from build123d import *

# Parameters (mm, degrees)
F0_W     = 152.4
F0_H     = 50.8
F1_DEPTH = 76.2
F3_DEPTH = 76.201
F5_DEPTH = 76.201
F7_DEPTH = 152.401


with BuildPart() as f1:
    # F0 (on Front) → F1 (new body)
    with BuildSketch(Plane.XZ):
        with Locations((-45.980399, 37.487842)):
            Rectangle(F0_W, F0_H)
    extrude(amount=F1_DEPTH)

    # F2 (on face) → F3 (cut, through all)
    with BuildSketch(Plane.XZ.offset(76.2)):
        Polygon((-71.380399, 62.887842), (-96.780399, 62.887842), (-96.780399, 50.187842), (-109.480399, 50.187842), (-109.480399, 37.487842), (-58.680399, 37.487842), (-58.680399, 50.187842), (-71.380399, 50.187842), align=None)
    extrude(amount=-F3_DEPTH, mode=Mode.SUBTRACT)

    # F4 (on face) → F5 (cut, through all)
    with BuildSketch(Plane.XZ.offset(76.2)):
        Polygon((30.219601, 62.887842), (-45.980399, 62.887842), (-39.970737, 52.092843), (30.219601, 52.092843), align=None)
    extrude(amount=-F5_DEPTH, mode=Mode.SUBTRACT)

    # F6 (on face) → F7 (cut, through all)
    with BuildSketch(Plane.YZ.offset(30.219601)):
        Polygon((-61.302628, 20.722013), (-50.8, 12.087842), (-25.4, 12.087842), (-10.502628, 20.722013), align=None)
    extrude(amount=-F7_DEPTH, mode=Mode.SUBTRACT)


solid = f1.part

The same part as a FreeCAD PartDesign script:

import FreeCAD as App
import Part
import Sketcher
from FreeCAD import Vector
Q = App.Units.Quantity


def add_polygon(sketch, points):
    """Adds a closed chain of lines whose ends are joined by coincident constraints."""
    first, n = sketch.GeometryCount, len(points)
    for a, b in zip(points, points[1:] + points[:1]):
        sketch.addGeometry(Part.LineSegment(App.Vector(*a, 0), App.Vector(*b, 0)), False)
    for i in range(n):
        sketch.addConstraint(Sketcher.Constraint("Coincident", first + i, 2, first + (i + 1) % n, 1))

doc = App.newDocument("Part")
body = doc.addObject("PartDesign::Body", "Body")

sketch1 = body.newObject("Sketcher::SketchObject", "Sketch")
sketch1.AttachmentSupport = (doc.getObject("XZ_Plane"), [""])
sketch1.MapMode = "FlatFace"
add_polygon(sketch1, [(-122, 63), (-122, 12), (30, 12), (30, 63)])
sketch1.addConstraint([
    Sketcher.Constraint("Vertical", 0),
    Sketcher.Constraint("Horizontal", 1),
    Sketcher.Constraint("Vertical", 2),
    Sketcher.Constraint("Horizontal", 3),
    Sketcher.Constraint("DistanceX", 1, 1, 1, 2, Q("6 in")),
    Sketcher.Constraint("DistanceY", 0, 2, 0, 1, Q("2 in")),
    Sketcher.Constraint("DistanceX", 0, 2, -1, 1, Q("122.180399 mm")),
    Sketcher.Constraint("DistanceY", -1, 1, 0, 2, Q("12.087842 mm")),
])
pad1 = body.newObject("PartDesign::Pad", "Pad")
pad1.Profile = sketch1
pad1.Length = Q("3 in")

sketch2 = body.newObject("Sketcher::SketchObject", "Sketch001")
sketch2.AttachmentSupport = (doc.getObject("XZ_Plane"), [""])
sketch2.MapMode = "FlatFace"
sketch2.AttachmentOffset = App.Placement(Vector(0, 0, 3 * 25.4), App.Rotation())
add_polygon(sketch2, [(-71, 63), (-97, 63), (-97, 50), (-109, 50), (-109, 37), (-59, 37), (-59, 50), (-71, 50)])
sketch2.addConstraint([
    Sketcher.Constraint("Horizontal", 0),
    Sketcher.Constraint("Vertical", 1),
    Sketcher.Constraint("Horizontal", 2),
    Sketcher.Constraint("Vertical", 3),
    Sketcher.Constraint("Horizontal", 4),
    Sketcher.Constraint("Vertical", 5),
    Sketcher.Constraint("Horizontal", 6),
    Sketcher.Constraint("Vertical", 7),
    Sketcher.Constraint("Horizontal", 2, 2, 5, 2),
    Sketcher.Constraint("Equal", 2, 6),
    Sketcher.Constraint("Equal", 6, 1),
    Sketcher.Constraint("Equal", 1, 3),
    Sketcher.Constraint("DistanceX", 0, 2, 0, 1, Q("1 in")),
    Sketcher.Constraint("DistanceX", 4, 1, 4, 2, Q("2 in")),
    Sketcher.Constraint("DistanceX", 0, 2, -1, 1, Q("96.780399 mm")),
    Sketcher.Constraint("DistanceY", -1, 1, 0, 2, Q("62.887842 mm")),
])
pocket1 = body.newObject("PartDesign::Pocket", "Pocket")
pocket1.Profile = sketch2
pocket1.Type = "ThroughAll"

sketch3 = body.newObject("Sketcher::SketchObject", "Sketch002")
sketch3.AttachmentSupport = (doc.getObject("XZ_Plane"), [""])
sketch3.MapMode = "FlatFace"
sketch3.AttachmentOffset = App.Placement(Vector(0, 0, 3 * 25.4), App.Rotation())
add_polygon(sketch3, [(30, 63), (-46, 63), (-40, 52), (30, 52)])
sketch3.addConstraint([
    Sketcher.Constraint("Horizontal", 0),
    Sketcher.Constraint("Horizontal", 2),
    Sketcher.Constraint("Vertical", 3),
    Sketcher.Constraint("DistanceX", 0, 2, 0, 1, Q("3 in")),
    Sketcher.Constraint("DistanceY", 3, 1, 3, 2, Q("0.425 in")),
    Sketcher.Constraint("DistanceX", 0, 2, -1, 1, Q("45.980399 mm")),
    Sketcher.Constraint("Distance", 1, Q("12.355082 mm")),
    Sketcher.Constraint("DistanceY", -1, 1, 0, 2, Q("62.887842 mm")),
])
pocket2 = body.newObject("PartDesign::Pocket", "Pocket001")
pocket2.Profile = sketch3
pocket2.Type = "ThroughAll"

sketch4 = body.newObject("Sketcher::SketchObject", "Sketch003")
sketch4.AttachmentSupport = (doc.getObject("YZ_Plane"), [""])
sketch4.MapMode = "FlatFace"
sketch4.AttachmentOffset = App.Placement(Vector(0, 0, 30.219601), App.Rotation())
add_polygon(sketch4, [(-61, 21), (-51, 12), (-25, 12), (-11, 21)])
sketch4.addConstraint([
    Sketcher.Constraint("Horizontal", 1),
    Sketcher.Constraint("Horizontal", 3),
    Sketcher.Constraint("DistanceX", 1, 1, 1, 2, Q("1 in")),
    Sketcher.Constraint("DistanceX", 3, 2, 3, 1, Q("2 in")),
    Sketcher.Constraint("DistanceX", 0, 2, -1, 1, Q("2 in")),
    Sketcher.Constraint("DistanceX", 1, 2, 2, 2, Q("14.897372 mm")),
    Sketcher.Constraint("DistanceY", 1, 2, 2, 2, Q("8.634171 mm")),
    Sketcher.Constraint("DistanceY", -1, 1, 0, 2, Q("12.087842 mm")),
])
pocket3 = body.newObject("PartDesign::Pocket", "Pocket002")
pocket3.Profile = sketch4
pocket3.Type = "ThroughAll"

doc.recompute()
